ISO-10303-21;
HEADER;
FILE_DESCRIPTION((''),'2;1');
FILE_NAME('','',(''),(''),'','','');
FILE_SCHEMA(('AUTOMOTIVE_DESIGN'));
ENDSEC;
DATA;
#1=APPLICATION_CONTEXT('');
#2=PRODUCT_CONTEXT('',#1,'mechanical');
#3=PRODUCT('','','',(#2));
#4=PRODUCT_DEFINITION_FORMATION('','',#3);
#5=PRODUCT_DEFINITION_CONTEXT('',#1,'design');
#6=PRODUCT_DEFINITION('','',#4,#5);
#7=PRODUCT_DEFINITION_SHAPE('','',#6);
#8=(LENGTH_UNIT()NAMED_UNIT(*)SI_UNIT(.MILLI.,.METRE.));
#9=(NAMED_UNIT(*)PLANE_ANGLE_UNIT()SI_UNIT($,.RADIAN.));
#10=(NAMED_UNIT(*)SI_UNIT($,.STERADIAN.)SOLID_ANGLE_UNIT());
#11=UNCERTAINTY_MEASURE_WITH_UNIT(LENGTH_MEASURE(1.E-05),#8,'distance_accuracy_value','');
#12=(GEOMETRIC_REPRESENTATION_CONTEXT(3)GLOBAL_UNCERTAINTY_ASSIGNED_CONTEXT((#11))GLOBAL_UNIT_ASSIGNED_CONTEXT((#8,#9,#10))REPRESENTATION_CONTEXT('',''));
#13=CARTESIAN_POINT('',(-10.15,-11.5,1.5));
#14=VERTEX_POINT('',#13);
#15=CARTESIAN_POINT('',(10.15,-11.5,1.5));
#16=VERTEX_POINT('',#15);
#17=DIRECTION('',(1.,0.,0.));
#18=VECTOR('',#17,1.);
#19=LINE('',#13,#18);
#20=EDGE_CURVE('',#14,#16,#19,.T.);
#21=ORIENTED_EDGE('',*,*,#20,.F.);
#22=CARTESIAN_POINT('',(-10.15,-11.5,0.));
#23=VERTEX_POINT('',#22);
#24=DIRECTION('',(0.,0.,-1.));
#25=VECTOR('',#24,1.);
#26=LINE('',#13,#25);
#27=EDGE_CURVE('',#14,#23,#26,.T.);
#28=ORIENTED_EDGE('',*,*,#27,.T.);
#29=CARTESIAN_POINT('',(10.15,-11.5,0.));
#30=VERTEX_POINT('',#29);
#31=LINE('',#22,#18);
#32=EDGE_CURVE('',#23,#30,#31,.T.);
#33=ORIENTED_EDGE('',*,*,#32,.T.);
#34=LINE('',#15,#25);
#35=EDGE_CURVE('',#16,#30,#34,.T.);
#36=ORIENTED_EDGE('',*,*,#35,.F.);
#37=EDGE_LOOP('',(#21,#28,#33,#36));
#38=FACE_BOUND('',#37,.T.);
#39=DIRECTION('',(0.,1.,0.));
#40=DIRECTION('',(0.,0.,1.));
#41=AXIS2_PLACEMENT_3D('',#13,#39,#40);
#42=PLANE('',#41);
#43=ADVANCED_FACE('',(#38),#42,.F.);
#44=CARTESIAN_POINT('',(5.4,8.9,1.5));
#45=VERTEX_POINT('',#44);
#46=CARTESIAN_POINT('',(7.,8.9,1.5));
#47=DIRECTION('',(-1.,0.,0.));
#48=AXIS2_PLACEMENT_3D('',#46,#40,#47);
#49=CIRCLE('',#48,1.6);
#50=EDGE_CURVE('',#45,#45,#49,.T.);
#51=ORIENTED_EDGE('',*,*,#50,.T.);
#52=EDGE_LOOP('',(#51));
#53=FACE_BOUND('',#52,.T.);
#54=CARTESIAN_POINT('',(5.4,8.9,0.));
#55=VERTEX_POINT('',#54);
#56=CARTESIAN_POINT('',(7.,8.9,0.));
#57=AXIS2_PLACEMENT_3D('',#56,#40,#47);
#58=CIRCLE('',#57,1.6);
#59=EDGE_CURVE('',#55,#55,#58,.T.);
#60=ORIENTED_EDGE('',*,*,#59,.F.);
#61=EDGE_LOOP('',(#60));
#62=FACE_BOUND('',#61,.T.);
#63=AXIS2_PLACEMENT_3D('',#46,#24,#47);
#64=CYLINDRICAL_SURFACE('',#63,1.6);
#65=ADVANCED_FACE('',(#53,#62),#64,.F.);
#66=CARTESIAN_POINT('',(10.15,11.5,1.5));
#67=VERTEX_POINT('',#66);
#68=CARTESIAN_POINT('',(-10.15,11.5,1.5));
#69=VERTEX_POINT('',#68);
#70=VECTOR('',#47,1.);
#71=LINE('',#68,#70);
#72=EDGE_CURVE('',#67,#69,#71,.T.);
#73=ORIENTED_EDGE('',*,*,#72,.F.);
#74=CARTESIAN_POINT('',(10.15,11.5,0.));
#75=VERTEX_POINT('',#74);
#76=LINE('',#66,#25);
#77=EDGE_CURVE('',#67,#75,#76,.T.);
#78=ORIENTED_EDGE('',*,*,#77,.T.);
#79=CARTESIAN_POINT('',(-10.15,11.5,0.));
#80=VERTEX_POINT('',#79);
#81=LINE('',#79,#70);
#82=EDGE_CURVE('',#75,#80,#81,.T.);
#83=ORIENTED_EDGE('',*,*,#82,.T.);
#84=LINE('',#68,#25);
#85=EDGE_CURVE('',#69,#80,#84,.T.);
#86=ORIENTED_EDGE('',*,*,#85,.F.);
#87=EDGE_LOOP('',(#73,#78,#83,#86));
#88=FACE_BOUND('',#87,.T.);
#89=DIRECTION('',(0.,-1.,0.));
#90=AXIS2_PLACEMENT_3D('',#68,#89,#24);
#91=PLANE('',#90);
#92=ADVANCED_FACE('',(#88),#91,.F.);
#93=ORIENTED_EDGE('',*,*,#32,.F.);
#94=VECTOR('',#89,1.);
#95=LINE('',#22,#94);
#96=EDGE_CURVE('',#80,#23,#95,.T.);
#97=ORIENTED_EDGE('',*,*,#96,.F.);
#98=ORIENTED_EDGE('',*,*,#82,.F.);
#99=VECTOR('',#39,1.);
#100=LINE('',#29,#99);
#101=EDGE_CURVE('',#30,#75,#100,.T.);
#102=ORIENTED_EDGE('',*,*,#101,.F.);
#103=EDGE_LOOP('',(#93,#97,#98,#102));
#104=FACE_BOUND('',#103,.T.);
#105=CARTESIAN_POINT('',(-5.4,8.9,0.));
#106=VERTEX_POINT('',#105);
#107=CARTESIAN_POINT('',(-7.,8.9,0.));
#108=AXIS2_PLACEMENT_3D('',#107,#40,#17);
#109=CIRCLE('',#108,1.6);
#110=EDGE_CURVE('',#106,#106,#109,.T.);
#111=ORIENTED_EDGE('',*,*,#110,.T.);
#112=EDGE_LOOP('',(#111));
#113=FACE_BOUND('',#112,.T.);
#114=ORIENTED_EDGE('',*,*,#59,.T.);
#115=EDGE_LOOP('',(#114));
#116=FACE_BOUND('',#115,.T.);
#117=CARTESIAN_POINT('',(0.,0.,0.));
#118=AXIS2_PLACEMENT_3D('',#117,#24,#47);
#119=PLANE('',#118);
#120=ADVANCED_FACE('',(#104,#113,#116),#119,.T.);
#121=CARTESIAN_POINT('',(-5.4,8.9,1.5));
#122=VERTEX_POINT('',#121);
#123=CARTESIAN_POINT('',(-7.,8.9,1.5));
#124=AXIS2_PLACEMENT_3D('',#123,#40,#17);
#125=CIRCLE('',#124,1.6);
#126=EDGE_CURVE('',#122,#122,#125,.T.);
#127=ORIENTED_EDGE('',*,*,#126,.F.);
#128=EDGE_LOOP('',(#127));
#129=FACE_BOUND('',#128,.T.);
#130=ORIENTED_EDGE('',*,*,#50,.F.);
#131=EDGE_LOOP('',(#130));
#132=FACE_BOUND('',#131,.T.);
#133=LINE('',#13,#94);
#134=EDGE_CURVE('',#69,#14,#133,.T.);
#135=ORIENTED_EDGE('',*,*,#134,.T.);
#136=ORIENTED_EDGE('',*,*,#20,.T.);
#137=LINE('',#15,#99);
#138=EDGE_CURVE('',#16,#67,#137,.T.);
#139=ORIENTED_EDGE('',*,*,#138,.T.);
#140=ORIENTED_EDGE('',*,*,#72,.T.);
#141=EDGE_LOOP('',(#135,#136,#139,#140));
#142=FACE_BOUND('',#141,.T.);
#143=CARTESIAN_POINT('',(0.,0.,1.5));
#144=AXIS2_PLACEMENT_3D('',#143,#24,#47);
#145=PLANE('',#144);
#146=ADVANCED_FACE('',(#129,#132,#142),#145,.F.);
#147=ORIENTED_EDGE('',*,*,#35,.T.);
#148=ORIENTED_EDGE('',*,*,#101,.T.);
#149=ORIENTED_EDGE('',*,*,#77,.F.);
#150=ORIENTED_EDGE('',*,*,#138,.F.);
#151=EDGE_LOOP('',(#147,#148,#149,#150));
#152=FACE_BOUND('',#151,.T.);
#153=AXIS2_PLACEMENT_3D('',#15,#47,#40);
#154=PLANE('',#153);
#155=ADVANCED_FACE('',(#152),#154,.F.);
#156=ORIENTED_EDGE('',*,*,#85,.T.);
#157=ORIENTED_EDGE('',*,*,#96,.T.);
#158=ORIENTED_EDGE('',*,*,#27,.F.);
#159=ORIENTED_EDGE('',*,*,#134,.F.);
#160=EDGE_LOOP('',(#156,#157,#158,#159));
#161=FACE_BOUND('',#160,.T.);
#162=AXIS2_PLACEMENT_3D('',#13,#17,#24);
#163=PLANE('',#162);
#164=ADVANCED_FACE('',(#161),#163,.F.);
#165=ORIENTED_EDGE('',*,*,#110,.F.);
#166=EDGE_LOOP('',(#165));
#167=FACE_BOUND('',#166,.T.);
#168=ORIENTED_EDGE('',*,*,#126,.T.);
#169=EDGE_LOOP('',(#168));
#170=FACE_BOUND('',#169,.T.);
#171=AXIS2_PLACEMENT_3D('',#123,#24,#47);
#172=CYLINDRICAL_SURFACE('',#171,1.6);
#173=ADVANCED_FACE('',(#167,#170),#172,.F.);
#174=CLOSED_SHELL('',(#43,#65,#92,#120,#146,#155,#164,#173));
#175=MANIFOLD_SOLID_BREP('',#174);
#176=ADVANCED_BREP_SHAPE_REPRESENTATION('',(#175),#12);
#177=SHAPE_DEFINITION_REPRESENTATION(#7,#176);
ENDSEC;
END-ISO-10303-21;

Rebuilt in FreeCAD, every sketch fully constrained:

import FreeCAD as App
import Part
import Sketcher
from FreeCAD import Vector
Q = App.Units.Quantity


def add_polygon(sketch, points):
    """Adds a closed chain of lines whose ends are joined by coincident constraints."""
    first, n = sketch.GeometryCount, len(points)
    for a, b in zip(points, points[1:] + points[:1]):
        sketch.addGeometry(Part.LineSegment(App.Vector(*a, 0), App.Vector(*b, 0)), False)
    for i in range(n):
        sketch.addConstraint(Sketcher.Constraint("Coincident", first + i, 2, first + (i + 1) % n, 1))

doc = App.newDocument("Part")
body = doc.addObject("PartDesign::Body", "Body")

sketch1 = body.newObject("Sketcher::SketchObject", "Sketch")
sketch1.AttachmentSupport = (doc.getObject("XY_Plane"), [""])
sketch1.MapMode = "FlatFace"
add_polygon(sketch1, [(-10.2, 11.5), (-10.2, -11.5), (10.2, -11.5), (10.2, 11.5)])
sketch1.addGeometry(Part.Circle(Vector(-7, 8.9, 0), Vector(0, 0, 1), 1.6), False)
sketch1.addGeometry(Part.Circle(Vector(7, 8.9, 0), Vector(0, 0, 1), 1.6), False)
sketch1.addConstraint(Sketcher.Constraint("Vertical", 0))
sketch1.addConstraint(Sketcher.Constraint("Horizontal", 1))
sketch1.addConstraint(Sketcher.Constraint("Vertical", 2))
sketch1.addConstraint(Sketcher.Constraint("Horizontal", 3))
sketch1.addConstraint(Sketcher.Constraint("Equal", 4, 5))
sketch1.addConstraint(Sketcher.Constraint("Symmetric", 0, 2, 2, 2, -1, 1))
sketch1.addConstraint(Sketcher.Constraint("Symmetric", 4, 3, 5, 3, -2))
sketch1.addConstraint(Sketcher.Constraint("Diameter", 4, Q("3.2 mm")))
sketch1.addConstraint(Sketcher.Constraint("DistanceY", 0, 2, 0, 1, Q("23 mm")))
sketch1.addConstraint(Sketcher.Constraint("DistanceX", 1, 1, 1, 2, Q("20.3 mm")))
sketch1.addConstraint(Sketcher.Constraint("DistanceX", 4, 3, -1, 1, Q("7 mm")))
sketch1.addConstraint(Sketcher.Constraint("DistanceY", -1, 1, 4, 3, Q("8.9 mm")))
pad1 = body.newObject("PartDesign::Pad", "Pad")
pad1.Profile = sketch1
pad1.Length = 1.5

doc.recompute()
